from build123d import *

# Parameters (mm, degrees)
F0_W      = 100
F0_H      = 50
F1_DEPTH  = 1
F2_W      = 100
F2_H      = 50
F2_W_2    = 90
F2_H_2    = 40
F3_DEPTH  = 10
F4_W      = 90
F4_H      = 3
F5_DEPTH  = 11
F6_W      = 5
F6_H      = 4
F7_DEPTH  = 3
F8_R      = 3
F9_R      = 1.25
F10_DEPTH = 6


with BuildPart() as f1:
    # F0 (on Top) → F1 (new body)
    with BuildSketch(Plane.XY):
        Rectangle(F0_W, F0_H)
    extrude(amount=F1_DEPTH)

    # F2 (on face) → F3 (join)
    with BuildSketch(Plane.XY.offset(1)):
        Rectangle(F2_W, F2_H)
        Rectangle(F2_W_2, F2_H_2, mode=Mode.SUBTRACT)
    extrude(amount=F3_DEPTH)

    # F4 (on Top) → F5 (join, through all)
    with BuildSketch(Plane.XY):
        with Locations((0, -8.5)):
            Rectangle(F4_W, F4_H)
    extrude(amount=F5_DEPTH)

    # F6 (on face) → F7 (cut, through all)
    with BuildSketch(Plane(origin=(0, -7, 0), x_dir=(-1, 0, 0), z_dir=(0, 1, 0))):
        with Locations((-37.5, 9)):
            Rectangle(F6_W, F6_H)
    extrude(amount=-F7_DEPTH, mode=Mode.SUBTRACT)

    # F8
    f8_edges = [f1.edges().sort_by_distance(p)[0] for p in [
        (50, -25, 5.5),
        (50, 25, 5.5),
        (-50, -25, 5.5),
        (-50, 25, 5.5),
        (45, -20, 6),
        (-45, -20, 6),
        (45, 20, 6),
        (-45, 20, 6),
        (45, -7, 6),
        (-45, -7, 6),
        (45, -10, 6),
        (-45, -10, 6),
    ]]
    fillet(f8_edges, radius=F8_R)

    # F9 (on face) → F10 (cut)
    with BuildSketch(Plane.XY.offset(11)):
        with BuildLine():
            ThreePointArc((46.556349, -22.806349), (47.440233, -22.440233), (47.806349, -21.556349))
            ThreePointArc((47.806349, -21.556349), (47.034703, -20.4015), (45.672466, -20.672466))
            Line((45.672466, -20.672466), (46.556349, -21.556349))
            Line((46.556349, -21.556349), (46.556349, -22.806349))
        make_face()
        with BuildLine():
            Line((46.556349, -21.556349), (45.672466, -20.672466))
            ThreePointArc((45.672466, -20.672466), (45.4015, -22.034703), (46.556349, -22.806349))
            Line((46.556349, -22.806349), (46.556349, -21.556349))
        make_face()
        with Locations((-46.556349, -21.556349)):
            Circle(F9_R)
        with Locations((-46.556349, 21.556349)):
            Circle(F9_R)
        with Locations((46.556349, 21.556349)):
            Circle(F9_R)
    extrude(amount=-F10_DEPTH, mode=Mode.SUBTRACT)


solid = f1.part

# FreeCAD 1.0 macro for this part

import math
import FreeCAD as App
import Part
import Sketcher

V = App.Vector


def edges_at(feature, points):
    """Names of the edges that pass closest to the given points."""
    edges = feature.Shape.Edges
    near = lambda p: min(range(len(edges)), key=lambda i: edges[i].distToShape(Part.Vertex(*p))[0])
    return sorted({f"Edge{near(p) + 1}" for p in points})


def add_polygon(sketch, points):
    """Adds a closed chain of lines whose ends are joined by coincident constraints."""
    first, n = sketch.GeometryCount, len(points)
    for a, b in zip(points, points[1:] + points[:1]):
        sketch.addGeometry(Part.LineSegment(App.Vector(*a, 0), App.Vector(*b, 0)), False)
    for i in range(n):
        sketch.addConstraint(Sketcher.Constraint("Coincident", first + i, 2, first + (i + 1) % n, 1))

doc = App.newDocument("Part")
params = doc.addObject("Spreadsheet::Sheet", "Params")
for row, (alias, value) in enumerate([
    ("sketch1_width", "100 mm"),
    ("sketch1_height", "50 mm"),
    ("pad1_length", "1 mm"),
    ("sketch2_width", "100 mm"),
    ("sketch2_width2", "90 mm"),
    ("sketch2_height", "50 mm"),
    ("sketch2_height2", "40 mm"),
    ("pad2_length", "10 mm"),
    ("sketch3_width", "90 mm"),
    ("sketch3_height", "3 mm"),
    ("pad3_length", "11 mm"),
    ("sketch4_width", "5 mm"),
    ("sketch4_height", "4 mm"),
    ("pocket1_length", "3 mm"),
    ("fillet_radius", "3 mm"),
    ("sketch5_diameter", "2.5 mm"),
    ("pocket2_length", "6 mm"),
], start=1):
    params.set(f"A{row}", alias)
    params.set(f"B{row}", "=" + value)
    params.setAlias(f"B{row}", alias)

body = doc.addObject("PartDesign::Body", "Body")

sketch1 = body.newObject("Sketcher::SketchObject", "Sketch")
sketch1.AttachmentSupport = (doc.getObject("XY_Plane"), [""])
sketch1.MapMode = "FlatFace"
add_polygon(sketch1, [(-50, 25), (-50, -25), (50, -25), (50, 25)])
sketch1.addConstraint(Sketcher.Constraint("Vertical", 0))
sketch1.addConstraint(Sketcher.Constraint("Horizontal", 1))
sketch1.addConstraint(Sketcher.Constraint("Vertical", 2))
sketch1.addConstraint(Sketcher.Constraint("Horizontal", 3))
sketch1.addConstraint(Sketcher.Constraint("Symmetric", 0, 2, 2, 2, -1, 1))
sketch1.addConstraint(Sketcher.Constraint("DistanceX", 1, 1, 1, 2, 100.0))
sketch1.addConstraint(Sketcher.Constraint("DistanceY", 0, 2, 0, 1, 50.0))
sketch1.setExpression("Constraints[9]", "Params.sketch1_width")
sketch1.setExpression("Constraints[10]", "Params.sketch1_height")
pad1 = body.newObject("PartDesign::Pad", "Pad")
pad1.Profile = sketch1
pad1.setExpression("Length", "Params.pad1_length")

sketch2 = body.newObject("Sketcher::SketchObject", "Sketch001")
sketch2.AttachmentSupport = (doc.getObject("XY_Plane"), [""])
sketch2.MapMode = "FlatFace"
sketch2.AttachmentOffset = App.Placement(V(0, 0, 1), App.Rotation())
add_polygon(sketch2, [(-50, 25), (-50, -25), (50, -25), (50, 25)])
add_polygon(sketch2, [(45, -20), (-45, -20), (-45, 20), (45, 20)])
sketch2.addConstraint(Sketcher.Constraint("Vertical", 0))
sketch2.addConstraint(Sketcher.Constraint("Horizontal", 1))
sketch2.addConstraint(Sketcher.Constraint("Vertical", 2))
sketch2.addConstraint(Sketcher.Constraint("Horizontal", 3))
sketch2.addConstraint(Sketcher.Constraint("Horizontal", 4))
sketch2.addConstraint(Sketcher.Constraint("Vertical", 5))
sketch2.addConstraint(Sketcher.Constraint("Horizontal", 6))
sketch2.addConstraint(Sketcher.Constraint("Vertical", 7))
sketch2.addConstraint(Sketcher.Constraint("Symmetric", 0, 2, 2, 2, -1, 1))
sketch2.addConstraint(Sketcher.Constraint("Symmetric", 4, 2, 6, 2, -1, 1))
sketch2.addConstraint(Sketcher.Constraint("DistanceX", 1, 1, 1, 2, 100.0))
sketch2.addConstraint(Sketcher.Constraint("DistanceX", 4, 2, 4, 1, 90.0))
sketch2.addConstraint(Sketcher.Constraint("DistanceY", 0, 2, 0, 1, 50.0))
sketch2.addConstraint(Sketcher.Constraint("DistanceY", 5, 1, 5, 2, 40.0))
sketch2.setExpression("Constraints[18]", "Params.sketch2_width")
sketch2.setExpression("Constraints[19]", "Params.sketch2_width2")
sketch2.setExpression("Constraints[20]", "Params.sketch2_height")
sketch2.setExpression("Constraints[21]", "Params.sketch2_height2")
pad2 = body.newObject("PartDesign::Pad", "Pad001")
pad2.Profile = sketch2
pad2.setExpression("Length", "Params.pad2_length")

sketch3 = body.newObject("Sketcher::SketchObject", "Sketch002")
sketch3.AttachmentSupport = (doc.getObject("XY_Plane"), [""])
sketch3.MapMode = "FlatFace"
add_polygon(sketch3, [(-45, -7), (-45, -10), (45, -10), (45, -7)])
sketch3.addConstraint(Sketcher.Constraint("Vertical", 0))
sketch3.addConstraint(Sketcher.Constraint("Horizontal", 1))
sketch3.addConstraint(Sketcher.Constraint("Vertical", 2))
sketch3.addConstraint(Sketcher.Constraint("Horizontal", 3))
sketch3.addConstraint(Sketcher.Constraint("DistanceX", 1, 1, 1, 2, 90.0))
sketch3.addConstraint(Sketcher.Constraint("DistanceY", 0, 2, 0, 1, 3.0))
sketch3.addConstraint(Sketcher.Constraint("DistanceX", 0, 2, -1, 1, 45.0))
sketch3.addConstraint(Sketcher.Constraint("DistanceY", 0, 2, -1, 1, 10.0))
sketch3.setExpression("Constraints[8]", "Params.sketch3_width")
sketch3.setExpression("Constraints[9]", "Params.sketch3_height")
pad3 = body.newObject("PartDesign::Pad", "Pad002")
pad3.Profile = sketch3
pad3.setExpression("Length", "Params.pad3_length")

sketch4 = body.newObject("Sketcher::SketchObject", "Sketch003")
sketch4.AttachmentSupport = (doc.getObject("XZ_Plane"), [""])
sketch4.MapMode = "FlatFace"
sketch4.AttachmentOffset = App.Placement(V(0, 0, 7), App.Rotation())
add_polygon(sketch4, [(40, 11), (40, 7), (35, 7), (35, 11)])
sketch4.addConstraint(Sketcher.Constraint("Vertical", 0))
sketch4.addConstraint(Sketcher.Constraint("Horizontal", 1))
sketch4.addConstraint(Sketcher.Constraint("Vertical", 2))
sketch4.addConstraint(Sketcher.Constraint("Horizontal", 3))
sketch4.addConstraint(Sketcher.Constraint("DistanceX", 1, 2, 1, 1, 5.0))
sketch4.addConstraint(Sketcher.Constraint("DistanceY", 0, 2, 0, 1, 4.0))
sketch4.addConstraint(Sketcher.Constraint("DistanceX", -1, 1, 0, 2, 40.0))
sketch4.addConstraint(Sketcher.Constraint("DistanceY", -1, 1, 0, 2, 7.0))
sketch4.setExpression("Constraints[8]", "Params.sketch4_width")
sketch4.setExpression("Constraints[9]", "Params.sketch4_height")
pocket1 = body.newObject("PartDesign::Pocket", "Pocket")
pocket1.Profile = sketch4
pocket1.setExpression("Length", "Params.pocket1_length")
pocket1.Reversed = True
doc.recompute()

fillet = body.newObject("PartDesign::Fillet", "Fillet")
fillet.Base = (pocket1, edges_at(pocket1, [
    (50, -25, 5.5),
    (50, 25, 5.5),
    (-50, -25, 5.5),
    (-50, 25, 5.5),
    (45, -20, 6),
    (-45, -20, 6),
    (45, 20, 6),
    (-45, 20, 6),
    (45, -7, 6),
    (-45, -7, 6),
    (45, -10, 6),
    (-45, -10, 6),
]))
fillet.setExpression("Radius", "Params.fillet_radius")

sketch5 = body.newObject("Sketcher::SketchObject", "Sketch004")
sketch5.AttachmentSupport = (doc.getObject("XY_Plane"), [""])
sketch5.MapMode = "FlatFace"
sketch5.AttachmentOffset = App.Placement(V(0, 0, 11), App.Rotation())
sketch5.addGeometry(Part.ArcOfCircle(Part.Circle(V(46.6, -21.6, 0), V(0, 0, 1), 1.2), math.radians(-90), math.radians(0)), False)
sketch5.addGeometry(Part.ArcOfCircle(Part.Circle(V(46.6, -21.6, 0), V(0, 0, 1), 1.2), math.radians(0), math.radians(135)), False)
sketch5.addGeometry(Part.ArcOfCircle(Part.Circle(V(46.6, -21.6, 0), V(0, 0, 1), 1.2), math.radians(135), math.radians(270)), False)
sketch5.addGeometry(Part.Circle(V(-46.6, -21.6, 0), V(0, 0, 1), 1.2), False)
sketch5.addGeometry(Part.Circle(V(-46.6, 21.6, 0), V(0, 0, 1), 1.2), False)
sketch5.addGeometry(Part.Circle(V(46.6, 21.6, 0), V(0, 0, 1), 1.2), False)
sketch5.addConstraint(Sketcher.Constraint("Tangent", 0, 2, 1, 1))
sketch5.addConstraint(Sketcher.Constraint("Tangent", 1, 2, 2, 1))
sketch5.addConstraint(Sketcher.Constraint("Tangent", 2, 2, 0, 1))
sketch5.addConstraint(Sketcher.Constraint("Equal", 2, 3))
sketch5.addConstraint(Sketcher.Constraint("Equal", 3, 4))
sketch5.addConstraint(Sketcher.Constraint("Equal", 4, 5))
sketch5.addConstraint(Sketcher.Constraint("Symmetric", 0, 3, 4, 3, -1, 1))
sketch5.addConstraint(Sketcher.Constraint("Symmetric", 3, 3, 5, 3, -1, 1))
sketch5.addConstraint(Sketcher.Constraint("Symmetric", 0, 3, 3, 3, -2))
sketch5.addConstraint(Sketcher.Constraint("Horizontal", 3, 3, 0, 2))
sketch5.addConstraint(Sketcher.Constraint("Vertical", 5, 3, 2, 2))
sketch5.addConstraint(Sketcher.Constraint("Diameter", 3, 2.5))
sketch5.addConstraint(Sketcher.Constraint("DistanceX", 3, 3, 1, 3, 93.112698))
sketch5.addConstraint(Sketcher.Constraint("DistanceY", 3, 3, 4, 3, 43.112698))
sketch5.addConstraint(Sketcher.Constraint("DistanceX", -1, 1, 1, 2, 45.672466))
sketch5.setExpression("Constraints[11]", "Params.sketch5_diameter")
pocket2 = body.newObject("PartDesign::Pocket", "Pocket001")
pocket2.Profile = sketch5
pocket2.setExpression("Length", "Params.pocket2_length")

doc.recompute()
